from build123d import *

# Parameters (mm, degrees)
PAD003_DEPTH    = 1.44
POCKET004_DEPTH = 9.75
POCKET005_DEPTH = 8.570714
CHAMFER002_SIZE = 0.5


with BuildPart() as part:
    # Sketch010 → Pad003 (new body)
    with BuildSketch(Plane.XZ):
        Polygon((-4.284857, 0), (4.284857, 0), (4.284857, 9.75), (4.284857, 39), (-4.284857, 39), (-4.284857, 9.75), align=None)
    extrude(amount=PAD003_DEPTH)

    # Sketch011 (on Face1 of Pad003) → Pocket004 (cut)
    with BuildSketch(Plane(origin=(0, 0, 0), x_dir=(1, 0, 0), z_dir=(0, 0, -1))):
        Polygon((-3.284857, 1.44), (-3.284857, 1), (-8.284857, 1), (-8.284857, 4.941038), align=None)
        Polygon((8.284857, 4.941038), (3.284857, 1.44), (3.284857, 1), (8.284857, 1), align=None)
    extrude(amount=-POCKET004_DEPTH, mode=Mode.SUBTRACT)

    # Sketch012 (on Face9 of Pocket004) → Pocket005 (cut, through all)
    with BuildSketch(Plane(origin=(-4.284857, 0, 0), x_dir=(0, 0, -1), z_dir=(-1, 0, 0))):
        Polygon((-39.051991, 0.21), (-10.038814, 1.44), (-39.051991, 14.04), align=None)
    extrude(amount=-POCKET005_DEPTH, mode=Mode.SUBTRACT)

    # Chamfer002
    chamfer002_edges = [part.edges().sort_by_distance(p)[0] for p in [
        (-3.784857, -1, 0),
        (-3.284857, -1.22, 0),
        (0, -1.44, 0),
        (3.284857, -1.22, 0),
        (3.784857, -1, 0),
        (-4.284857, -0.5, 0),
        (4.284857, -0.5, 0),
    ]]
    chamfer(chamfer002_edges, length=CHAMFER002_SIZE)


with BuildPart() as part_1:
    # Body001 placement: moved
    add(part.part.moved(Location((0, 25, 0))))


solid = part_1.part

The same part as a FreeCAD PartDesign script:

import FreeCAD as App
import Part
import Sketcher
Q = App.Units.Quantity


def edges_at(feature, points):
    """Names of the edges that pass closest to the given points."""
    edges = feature.Shape.Edges
    near = lambda p: min(range(len(edges)), key=lambda i: edges[i].distToShape(Part.Vertex(*p))[0])
    return sorted({f"Edge{near(p) + 1}" for p in points})

doc = App.newDocument("Part")
params = doc.addObject("Spreadsheet::Sheet", "Params")
for row, (alias, value) in enumerate([
    ("sketch1_height", "39 mm"),
    ("pad1_length", "1.44 mm"),
    ("sketch2_width", "5 mm"),
    ("sketch2_height", "0.44 mm"),
    ("pocket1_length", "9.75 mm"),
    ("sketch3_width", "13.83 mm"),
    ("chamfer_size", "0.5 mm"),
], start=1):
    params.set(f"A{row}", alias)
    params.set(f"B{row}", "=" + value)
    params.setAlias(f"B{row}", alias)

body = doc.addObject("PartDesign::Body", "Body")

sketch1 = doc.addObject("Sketcher::SketchObject", "Sketch")
body.addObject(sketch1)
sketch1.AttachmentSupport = (doc.XZ_Plane, [""])
sketch1.MapMode = "FlatFace"
sketch1.addGeometry([
    Part.LineSegment(App.Vector(-4, 0, 0), App.Vector(4, 0, 0)),
    Part.LineSegment(App.Vector(4, 0, 0), App.Vector(4, 39, 0)),
    Part.LineSegment(App.Vector(4, 39, 0), App.Vector(-4, 39, 0)),
    Part.LineSegment(App.Vector(-4, 39, 0), App.Vector(-4, 0, 0)),
], False)
sketch1.addConstraint([
    Sketcher.Constraint("Coincident", 0, 2, 1, 1),
    Sketcher.Constraint("Coincident", 1, 2, 2, 1),
    Sketcher.Constraint("Coincident", 2, 2, 3, 1),
    Sketcher.Constraint("Coincident", 3, 2, 0, 1),
    Sketcher.Constraint("Horizontal", 0),
    Sketcher.Constraint("Vertical", 1),
    Sketcher.Constraint("Horizontal", 2),
    Sketcher.Constraint("Vertical", 3),
    Sketcher.Constraint("Symmetric", 0, 2, 3, 2, -1, 1),
    Sketcher.Constraint("DistanceY", 1, 1, 1, 2, 39.0),
    Sketcher.Constraint("DistanceX", 0, 1, 0, 2, 8.569714),
])
sketch1.setExpression("Constraints[9]", "Params.sketch1_height")
pad1 = doc.addObject("PartDesign::Pad", "Pad")
body.addObject(pad1)
pad1.Profile = sketch1
pad1.setExpression("Length", "Params.pad1_length")

sketch2 = doc.addObject("Sketcher::SketchObject", "Sketch001")
body.addObject(sketch2)
sketch2.AttachmentSupport = (doc.XY_Plane, [""])
sketch2.MapMode = "FlatFace"
sketch2.addGeometry([
    Part.LineSegment(App.Vector(-3.28, -1, 0), App.Vector(-3.28, -1.44, 0)),
    Part.LineSegment(App.Vector(-3.28, -1.44, 0), App.Vector(-8.28, -4.94, 0)),
    Part.LineSegment(App.Vector(-8.28, -4.94, 0), App.Vector(-8.28, -1, 0)),
    Part.LineSegment(App.Vector(-8.28, -1, 0), App.Vector(-3.28, -1, 0)),
    Part.LineSegment(App.Vector(8.28, -4.94, 0), App.Vector(3.28, -1.44, 0)),
    Part.LineSegment(App.Vector(3.28, -1.44, 0), App.Vector(3.28, -1, 0)),
    Part.LineSegment(App.Vector(3.28, -1, 0), App.Vector(8.28, -1, 0)),
    Part.LineSegment(App.Vector(8.28, -1, 0), App.Vector(8.28, -4.94, 0)),
], False)
sketch2.addConstraint([
    Sketcher.Constraint("Coincident", 0, 2, 1, 1),
    Sketcher.Constraint("Coincident", 1, 2, 2, 1),
    Sketcher.Constraint("Coincident", 2, 2, 3, 1),
    Sketcher.Constraint("Coincident", 3, 2, 0, 1),
    Sketcher.Constraint("Coincident", 4, 2, 5, 1),
    Sketcher.Constraint("Coincident", 5, 2, 6, 1),
    Sketcher.Constraint("Coincident", 6, 2, 7, 1),
    Sketcher.Constraint("Coincident", 7, 2, 4, 1),
    Sketcher.Constraint("Vertical", 0),
    Sketcher.Constraint("Vertical", 2),
    Sketcher.Constraint("Horizontal", 3),
    Sketcher.Constraint("Vertical", 5),
    Sketcher.Constraint("Horizontal", 6),
    Sketcher.Constraint("Vertical", 7),
    Sketcher.Constraint("Symmetric", 0, 2, 4, 2, -2),
    Sketcher.Constraint("Symmetric", 2, 2, 6, 2, -2),
    Sketcher.Constraint("Horizontal", 1, 2, 7, 2),
    Sketcher.Constraint("DistanceX", 3, 1, 3, 2, 5.0),
    Sketcher.Constraint("Angle", 1, Q("-144.999998 deg")),
    Sketcher.Constraint("DistanceY", 2, 2, -1, 1, 1.0),
    Sketcher.Constraint("DistanceY", 0, 2, 0, 1, 0.44),
    Sketcher.Constraint("DistanceX", 0, 2, -1, 1, 3.284857),
])
sketch2.setExpression("Constraints[17]", "Params.sketch2_width")
sketch2.setExpression("Constraints[20]", "Params.sketch2_height")
pocket1 = doc.addObject("PartDesign::Pocket", "Pocket")
body.addObject(pocket1)
pocket1.Profile = sketch2
pocket1.setExpression("Length", "Params.pocket1_length")
pocket1.Reversed = True

sketch3 = doc.addObject("Sketcher::SketchObject", "Sketch002")
body.addObject(sketch3)
sketch3.AttachmentSupport = (doc.YZ_Plane, [""])
sketch3.MapMode = "FlatFace"
sketch3.AttachmentOffset = App.Placement(App.Vector(0, 0, -4.284857), App.Rotation())
sketch3.addGeometry([
    Part.LineSegment(App.Vector(0, 39, 0), App.Vector(-1, 10, 0)),
    Part.LineSegment(App.Vector(-1, 10, 0), App.Vector(-14, 39, 0)),
    Part.LineSegment(App.Vector(-14, 39, 0), App.Vector(0, 39, 0)),
], False)
sketch3.addConstraint([
    Sketcher.Constraint("Coincident", 0, 2, 1, 1),
    Sketcher.Constraint("Coincident", 1, 2, 2, 1),
    Sketcher.Constraint("Coincident", 2, 2, 0, 1),
    Sketcher.Constraint("Horizontal", 2),
    Sketcher.Constraint("DistanceX", 2, 1, 2, 2, 13.83),
    Sketcher.Constraint("DistanceX", 1, 2, 0, 2, 12.6),
    Sketcher.Constraint("DistanceX", 0, 2, -1, 1, 1.44),
    Sketcher.Constraint("DistanceY", -1, 1, 1, 2, 39.051991),
    Sketcher.Constraint("Distance", 0, 29.039238),
])
sketch3.setExpression("Constraints[4]", "Params.sketch3_width")
pocket2 = doc.addObject("PartDesign::Pocket", "Pocket001")
body.addObject(pocket2)
pocket2.Profile = sketch3
pocket2.Type = "ThroughAll"
pocket2.Reversed = True
doc.recompute()

chamfer = doc.addObject("PartDesign::Chamfer", "Chamfer")
body.addObject(chamfer)
chamfer.Base = (pocket2, edges_at(pocket2, [
    (-3.785, -1, 0),
    (-3.285, -1.22, 0),
    (0, -1.44, 0),
    (3.285, -1.22, 0),
    (3.785, -1, 0),
    (-4.285, -0.5, 0),
    (4.285, -0.5, 0),
]))
chamfer.setExpression("Size", "Params.chamfer_size")
body2 = doc.addObject("PartDesign::Body", "Body001")
doc.recompute()

body.Placement = App.Placement(App.Vector(0, 25, 0), App.Rotation(App.Vector(0, 0, 1), 0))
boolean = doc.addObject("PartDesign::Boolean", "Boolean")
body2.addObject(boolean)
boolean.Type = "Fuse"
boolean.addObjects([body])

doc.recompute()
